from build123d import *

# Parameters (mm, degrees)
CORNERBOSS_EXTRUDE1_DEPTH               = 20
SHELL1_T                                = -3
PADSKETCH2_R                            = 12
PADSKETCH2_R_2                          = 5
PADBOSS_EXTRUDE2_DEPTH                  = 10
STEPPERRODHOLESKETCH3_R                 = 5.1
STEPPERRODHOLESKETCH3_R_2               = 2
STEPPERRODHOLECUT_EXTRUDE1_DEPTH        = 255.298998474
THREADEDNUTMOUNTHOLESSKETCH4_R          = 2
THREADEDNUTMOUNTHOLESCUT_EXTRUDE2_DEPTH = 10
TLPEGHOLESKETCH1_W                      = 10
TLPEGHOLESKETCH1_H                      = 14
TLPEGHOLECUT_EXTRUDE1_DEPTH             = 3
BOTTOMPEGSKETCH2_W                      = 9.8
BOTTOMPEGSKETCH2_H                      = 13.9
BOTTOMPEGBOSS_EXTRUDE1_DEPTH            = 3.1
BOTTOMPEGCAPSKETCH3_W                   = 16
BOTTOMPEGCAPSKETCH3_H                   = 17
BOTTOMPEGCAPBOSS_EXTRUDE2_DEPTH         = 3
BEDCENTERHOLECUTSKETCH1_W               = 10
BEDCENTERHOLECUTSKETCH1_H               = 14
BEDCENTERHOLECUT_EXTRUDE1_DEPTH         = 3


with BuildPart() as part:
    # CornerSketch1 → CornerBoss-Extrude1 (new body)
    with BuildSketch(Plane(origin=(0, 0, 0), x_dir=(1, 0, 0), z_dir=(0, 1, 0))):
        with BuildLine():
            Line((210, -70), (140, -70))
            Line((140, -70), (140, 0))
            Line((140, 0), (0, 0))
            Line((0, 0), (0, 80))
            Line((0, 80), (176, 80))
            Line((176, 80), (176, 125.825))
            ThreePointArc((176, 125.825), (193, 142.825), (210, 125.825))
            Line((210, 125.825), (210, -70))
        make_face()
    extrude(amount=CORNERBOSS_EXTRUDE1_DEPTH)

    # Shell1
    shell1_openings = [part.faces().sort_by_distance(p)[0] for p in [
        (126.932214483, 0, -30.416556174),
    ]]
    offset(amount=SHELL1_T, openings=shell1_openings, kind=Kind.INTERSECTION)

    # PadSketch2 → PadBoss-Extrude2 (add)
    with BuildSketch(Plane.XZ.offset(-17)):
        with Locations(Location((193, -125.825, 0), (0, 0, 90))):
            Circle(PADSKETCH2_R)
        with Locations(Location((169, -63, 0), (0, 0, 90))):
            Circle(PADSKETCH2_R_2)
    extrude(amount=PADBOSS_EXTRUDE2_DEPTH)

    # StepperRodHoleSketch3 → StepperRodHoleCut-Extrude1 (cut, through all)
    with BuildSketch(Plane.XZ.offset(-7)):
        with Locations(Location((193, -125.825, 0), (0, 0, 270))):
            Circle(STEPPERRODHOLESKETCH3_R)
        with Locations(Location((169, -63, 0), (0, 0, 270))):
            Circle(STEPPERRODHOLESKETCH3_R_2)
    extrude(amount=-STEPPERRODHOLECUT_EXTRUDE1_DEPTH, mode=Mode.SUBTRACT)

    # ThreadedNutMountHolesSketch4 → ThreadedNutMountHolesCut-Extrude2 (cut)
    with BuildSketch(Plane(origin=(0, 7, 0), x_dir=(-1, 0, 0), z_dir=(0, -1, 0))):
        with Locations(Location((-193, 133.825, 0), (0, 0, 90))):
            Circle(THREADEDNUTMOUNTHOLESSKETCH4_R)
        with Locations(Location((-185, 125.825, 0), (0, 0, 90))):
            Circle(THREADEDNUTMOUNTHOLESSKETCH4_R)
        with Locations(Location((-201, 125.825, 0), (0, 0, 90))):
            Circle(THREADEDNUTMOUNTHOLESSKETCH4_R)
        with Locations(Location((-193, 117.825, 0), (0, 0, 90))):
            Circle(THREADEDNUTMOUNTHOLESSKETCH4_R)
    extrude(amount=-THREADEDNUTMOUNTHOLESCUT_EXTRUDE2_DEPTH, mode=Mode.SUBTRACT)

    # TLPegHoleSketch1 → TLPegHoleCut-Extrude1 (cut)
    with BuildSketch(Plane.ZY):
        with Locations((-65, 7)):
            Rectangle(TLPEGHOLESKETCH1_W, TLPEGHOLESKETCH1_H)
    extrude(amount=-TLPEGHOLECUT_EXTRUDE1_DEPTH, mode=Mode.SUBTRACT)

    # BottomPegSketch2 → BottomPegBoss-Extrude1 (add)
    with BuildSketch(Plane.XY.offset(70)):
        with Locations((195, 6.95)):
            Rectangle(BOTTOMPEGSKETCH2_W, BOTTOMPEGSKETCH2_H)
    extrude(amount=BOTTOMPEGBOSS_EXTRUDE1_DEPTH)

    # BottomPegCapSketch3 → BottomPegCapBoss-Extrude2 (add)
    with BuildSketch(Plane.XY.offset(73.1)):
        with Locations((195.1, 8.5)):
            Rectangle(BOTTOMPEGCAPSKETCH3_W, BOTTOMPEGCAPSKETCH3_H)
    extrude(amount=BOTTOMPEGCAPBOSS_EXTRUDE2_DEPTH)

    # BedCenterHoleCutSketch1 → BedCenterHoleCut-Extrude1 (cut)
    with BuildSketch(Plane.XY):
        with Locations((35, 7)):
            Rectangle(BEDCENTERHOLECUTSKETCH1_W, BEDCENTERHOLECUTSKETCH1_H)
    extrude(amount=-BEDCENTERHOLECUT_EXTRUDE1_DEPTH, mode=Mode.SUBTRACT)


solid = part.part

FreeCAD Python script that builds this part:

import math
import FreeCAD as App
import Part
import Sketcher

V = App.Vector
Q = App.Units.Quantity


def faces_at(feature, points):
    """Names of the faces that lie closest to the given points."""
    faces = feature.Shape.Faces
    near = lambda p: min(range(len(faces)), key=lambda i: faces[i].distToShape(Part.Vertex(*p))[0])
    return sorted({f"Face{near(p) + 1}" for p in points})

doc = App.newDocument("Part")
body = doc.addObject("PartDesign::Body", "Body")

sketch1 = body.newObject("Sketcher::SketchObject", "Sketch")
sketch1.AttachmentSupport = (doc.getObject("XZ_Plane"), [""])
sketch1.MapMode = "FlatFace"
sketch1.addGeometry([
    Part.LineSegment(V(140, 70, 0), V(210, 70, 0)),
    Part.LineSegment(V(210, 70, 0), V(210, -125.825, 0)),
    Part.ArcOfCircle(Part.Circle(V(193, -125.825, 0), V(0, 0, 1), 17), math.radians(180), math.radians(360)),
    Part.LineSegment(V(176, -125.825, 0), V(176, -80, 0)),
    Part.LineSegment(V(176, -80, 0), V(0, -80, 0)),
    Part.LineSegment(V(0, -80, 0), V(0, 0, 0)),
    Part.LineSegment(V(0, 0, 0), V(140, 0, 0)),
    Part.LineSegment(V(140, 0, 0), V(140, 70, 0)),
], False)
sketch1.addConstraint([
    Sketcher.Constraint("Coincident", 0, 2, 1, 1),
    Sketcher.Constraint("Tangent", 1, 2, 2, 2),
    Sketcher.Constraint("Tangent", 2, 1, 3, 1),
    Sketcher.Constraint("Coincident", 3, 2, 4, 1),
    Sketcher.Constraint("Coincident", 4, 2, 5, 1),
    Sketcher.Constraint("Coincident", 5, 2, 6, 1),
    Sketcher.Constraint("Coincident", 6, 2, 7, 1),
    Sketcher.Constraint("Coincident", 7, 2, 0, 1),
    Sketcher.Constraint("Horizontal", 0),
    Sketcher.Constraint("Vertical", 1),
    Sketcher.Constraint("Vertical", 3),
    Sketcher.Constraint("Horizontal", 4),
    Sketcher.Constraint("Vertical", 5),
    Sketcher.Constraint("Horizontal", 6),
    Sketcher.Constraint("Vertical", 7),
    Sketcher.Constraint("Coincident", 5, 2, -1, 1),
    Sketcher.Constraint("Equal", 0, 7),
    Sketcher.Constraint("Radius", 2, Q("17 mm")),
    Sketcher.Constraint("DistanceX", 0, 1, 0, 2, Q("70 mm")),
    Sketcher.Constraint("DistanceX", 4, 2, 4, 1, Q("176 mm")),
    Sketcher.Constraint("DistanceY", 5, 1, 5, 2, Q("80 mm")),
    Sketcher.Constraint("DistanceY", 1, 2, 1, 1, Q("195.825 mm")),
])
pad1 = body.newObject("PartDesign::Pad", "Pad")
pad1.Profile = sketch1
pad1.Length = 20
pad1.Reversed = True
doc.recompute()

thickness = body.newObject("PartDesign::Thickness", "Thickness")
thickness.Base = (pad1, faces_at(pad1, [(105, 0, -36.413)]))
thickness.Value = 3
thickness.Reversed = True
thickness.Join = "Intersection"

sketch2 = body.newObject("Sketcher::SketchObject", "Sketch001")
sketch2.AttachmentSupport = (doc.getObject("XZ_Plane"), [""])
sketch2.MapMode = "FlatFace"
sketch2.AttachmentOffset = App.Placement(V(0, 0, -17), App.Rotation())
sketch2.addGeometry([
    Part.Circle(V(193, -125.825, 0), V(0, 0, 1), 12),
    Part.Circle(V(169, -63, 0), V(0, 0, 1), 5),
], False)
sketch2.addConstraint([
    Sketcher.Constraint("Diameter", 0, Q("24 mm")),
    Sketcher.Constraint("Diameter", 1, Q("10 mm")),
    Sketcher.Constraint("DistanceX", -1, 1, 0, 3, Q("193 mm")),
    Sketcher.Constraint("DistanceX", -1, 1, 1, 3, Q("169 mm")),
    Sketcher.Constraint("DistanceY", 1, 3, -1, 1, Q("63 mm")),
    Sketcher.Constraint("DistanceY", 0, 3, -1, 1, Q("125.825 mm")),
])
pad2 = body.newObject("PartDesign::Pad", "Pad001")
pad2.Profile = sketch2
pad2.Length = 10

sketch3 = body.newObject("Sketcher::SketchObject", "Sketch002")
sketch3.AttachmentSupport = (doc.getObject("XZ_Plane"), [""])
sketch3.MapMode = "FlatFace"
sketch3.AttachmentOffset = App.Placement(V(0, 0, -7), App.Rotation())
sketch3.addGeometry([
    Part.Circle(V(193, -125.825, 0), V(0, 0, 1), 5.1),
    Part.Circle(V(169, -63, 0), V(0, 0, 1), 2),
], False)
sketch3.addConstraint([
    Sketcher.Constraint("Diameter", 1, Q("4 mm")),
    Sketcher.Constraint("Diameter", 0, Q("10.2 mm")),
    Sketcher.Constraint("DistanceX", -1, 1, 0, 3, Q("193 mm")),
    Sketcher.Constraint("DistanceX", -1, 1, 1, 3, Q("169 mm")),
    Sketcher.Constraint("DistanceY", 1, 3, -1, 1, Q("63 mm")),
    Sketcher.Constraint("DistanceY", 0, 3, -1, 1, Q("125.825 mm")),
])
pocket1 = body.newObject("PartDesign::Pocket", "Pocket")
pocket1.Profile = sketch3
pocket1.Type = "ThroughAll"

sketch4 = body.newObject("Sketcher::SketchObject", "Sketch003")
sketch4.AttachmentSupport = (doc.getObject("XZ_Plane"), [""])
sketch4.MapMode = "FlatFace"
sketch4.AttachmentOffset = App.Placement(V(0, 0, -7), App.Rotation())
sketch4.addGeometry([
    Part.Circle(V(193, -133.825, 0), V(0, 0, 1), 2),
    Part.Circle(V(185, -125.825, 0), V(0, 0, 1), 2),
    Part.Circle(V(201, -125.825, 0), V(0, 0, 1), 2),
    Part.Circle(V(193, -117.825, 0), V(0, 0, 1), 2),
], False)
sketch4.addConstraint([
    Sketcher.Constraint("Equal", 0, 1),
    Sketcher.Constraint("Equal", 1, 2),
    Sketcher.Constraint("Equal", 2, 3),
    Sketcher.Constraint("Horizontal", 1, 3, 2, 3),
    Sketcher.Constraint("Vertical", 0, 3, 3, 3),
    Sketcher.Constraint("Diameter", 0, Q("4 mm")),
    Sketcher.Constraint("DistanceX", -1, 1, 0, 3, Q("193 mm")),
    Sketcher.Constraint("DistanceX", -1, 1, 1, 3, Q("185 mm")),
    Sketcher.Constraint("DistanceX", -1, 1, 2, 3, Q("201 mm")),
    Sketcher.Constraint("DistanceY", 0, 3, 1, 3, Q("8 mm")),
    Sketcher.Constraint("DistanceY", 1, 3, 3, 3, Q("8 mm")),
    Sketcher.Constraint("DistanceY", 0, 3, -1, 1, Q("133.825 mm")),
])
pocket2 = body.newObject("PartDesign::Pocket", "Pocket001")
pocket2.Profile = sketch4
pocket2.Length = 10

sketch5 = body.newObject("Sketcher::SketchObject", "Sketch004")
sketch5.AttachmentSupport = (doc.getObject("YZ_Plane"), [""])
sketch5.MapMode = "FlatFace"
sketch5.addGeometry([
    Part.LineSegment(V(14, -70, 0), V(0, -70, 0)),
    Part.LineSegment(V(0, -70, 0), V(0, -60, 0)),
    Part.LineSegment(V(0, -60, 0), V(14, -60, 0)),
    Part.LineSegment(V(14, -60, 0), V(14, -70, 0)),
], False)
sketch5.addConstraint([
    Sketcher.Constraint("Coincident", 0, 2, 1, 1),
    Sketcher.Constraint("Coincident", 1, 2, 2, 1),
    Sketcher.Constraint("Coincident", 2, 2, 3, 1),
    Sketcher.Constraint("Coincident", 3, 2, 0, 1),
    Sketcher.Constraint("Horizontal", 0),
    Sketcher.Constraint("Vertical", 1),
    Sketcher.Constraint("Horizontal", 2),
    Sketcher.Constraint("Vertical", 3),
    Sketcher.Constraint("PointOnObject", 0, 2, -2),
    Sketcher.Constraint("DistanceX", 0, 2, 0, 1, Q("14 mm")),
    Sketcher.Constraint("DistanceY", 1, 1, 1, 2, Q("10 mm")),
    Sketcher.Constraint("DistanceY", 0, 2, -1, 1, Q("70 mm")),
])
pocket3 = body.newObject("PartDesign::Pocket", "Pocket002")
pocket3.Profile = sketch5
pocket3.Length = 3
pocket3.Reversed = True

sketch6 = body.newObject("Sketcher::SketchObject", "Sketch005")
sketch6.AttachmentSupport = (doc.getObject("XY_Plane"), [""])
sketch6.MapMode = "FlatFace"
sketch6.AttachmentOffset = App.Placement(V(0, 0, 70), App.Rotation())
sketch6.addGeometry([
    Part.LineSegment(V(190.1, 13.9, 0), V(190.1, 0, 0)),
    Part.LineSegment(V(190.1, 0, 0), V(199.9, 0, 0)),
    Part.LineSegment(V(199.9, 0, 0), V(199.9, 13.9, 0)),
    Part.LineSegment(V(199.9, 13.9, 0), V(190.1, 13.9, 0)),
], False)
sketch6.addConstraint([
    Sketcher.Constraint("Coincident", 0, 2, 1, 1),
    Sketcher.Constraint("Coincident", 1, 2, 2, 1),
    Sketcher.Constraint("Coincident", 2, 2, 3, 1),
    Sketcher.Constraint("Coincident", 3, 2, 0, 1),
    Sketcher.Constraint("Vertical", 0),
    Sketcher.Constraint("Horizontal", 1),
    Sketcher.Constraint("Vertical", 2),
    Sketcher.Constraint("Horizontal", 3),
    Sketcher.Constraint("PointOnObject", 0, 2, -1),
    Sketcher.Constraint("DistanceX", 1, 1, 1, 2, Q("9.8 mm")),
    Sketcher.Constraint("DistanceY", 0, 2, 0, 1, Q("13.9 mm")),
    Sketcher.Constraint("DistanceX", -1, 1, 0, 2, Q("190.1 mm")),
])
pad3 = body.newObject("PartDesign::Pad", "Pad002")
pad3.Profile = sketch6
pad3.Length = 3.1

sketch7 = body.newObject("Sketcher::SketchObject", "Sketch006")
sketch7.AttachmentSupport = (doc.getObject("XY_Plane"), [""])
sketch7.MapMode = "FlatFace"
sketch7.AttachmentOffset = App.Placement(V(0, 0, 73.1), App.Rotation())
sketch7.addGeometry([
    Part.LineSegment(V(187.1, 17, 0), V(187.1, 0, 0)),
    Part.LineSegment(V(187.1, 0, 0), V(203.1, 0, 0)),
    Part.LineSegment(V(203.1, 0, 0), V(203.1, 17, 0)),
    Part.LineSegment(V(203.1, 17, 0), V(187.1, 17, 0)),
], False)
sketch7.addConstraint([
    Sketcher.Constraint("Coincident", 0, 2, 1, 1),
    Sketcher.Constraint("Coincident", 1, 2, 2, 1),
    Sketcher.Constraint("Coincident", 2, 2, 3, 1),
    Sketcher.Constraint("Coincident", 3, 2, 0, 1),
    Sketcher.Constraint("Vertical", 0),
    Sketcher.Constraint("Horizontal", 1),
    Sketcher.Constraint("Vertical", 2),
    Sketcher.Constraint("Horizontal", 3),
    Sketcher.Constraint("PointOnObject", 0, 2, -1),
    Sketcher.Constraint("DistanceX", 1, 1, 1, 2, Q("16 mm")),
    Sketcher.Constraint("DistanceY", 0, 2, 0, 1, Q("17 mm")),
    Sketcher.Constraint("DistanceX", -1, 1, 0, 2, Q("187.1 mm")),
])
pad4 = body.newObject("PartDesign::Pad", "Pad003")
pad4.Profile = sketch7
pad4.Length = 3

sketch8 = body.newObject("Sketcher::SketchObject", "Sketch007")
sketch8.AttachmentSupport = (doc.getObject("XY_Plane"), [""])
sketch8.MapMode = "FlatFace"
sketch8.addGeometry([
    Part.LineSegment(V(30, 14, 0), V(30, 0, 0)),
    Part.LineSegment(V(30, 0, 0), V(40, 0, 0)),
    Part.LineSegment(V(40, 0, 0), V(40, 14, 0)),
    Part.LineSegment(V(40, 14, 0), V(30, 14, 0)),
], False)
sketch8.addConstraint([
    Sketcher.Constraint("Coincident", 0, 2, 1, 1),
    Sketcher.Constraint("Coincident", 1, 2, 2, 1),
    Sketcher.Constraint("Coincident", 2, 2, 3, 1),
    Sketcher.Constraint("Coincident", 3, 2, 0, 1),
    Sketcher.Constraint("Vertical", 0),
    Sketcher.Constraint("Horizontal", 1),
    Sketcher.Constraint("Vertical", 2),
    Sketcher.Constraint("Horizontal", 3),
    Sketcher.Constraint("PointOnObject", 0, 2, -1),
    Sketcher.Constraint("DistanceX", 1, 1, 1, 2, Q("10 mm")),
    Sketcher.Constraint("DistanceY", 0, 2, 0, 1, Q("14 mm")),
    Sketcher.Constraint("DistanceX", -1, 1, 0, 2, Q("30 mm")),
])
pocket4 = body.newObject("PartDesign::Pocket", "Pocket003")
pocket4.Profile = sketch8
pocket4.Length = 3

doc.recompute()
